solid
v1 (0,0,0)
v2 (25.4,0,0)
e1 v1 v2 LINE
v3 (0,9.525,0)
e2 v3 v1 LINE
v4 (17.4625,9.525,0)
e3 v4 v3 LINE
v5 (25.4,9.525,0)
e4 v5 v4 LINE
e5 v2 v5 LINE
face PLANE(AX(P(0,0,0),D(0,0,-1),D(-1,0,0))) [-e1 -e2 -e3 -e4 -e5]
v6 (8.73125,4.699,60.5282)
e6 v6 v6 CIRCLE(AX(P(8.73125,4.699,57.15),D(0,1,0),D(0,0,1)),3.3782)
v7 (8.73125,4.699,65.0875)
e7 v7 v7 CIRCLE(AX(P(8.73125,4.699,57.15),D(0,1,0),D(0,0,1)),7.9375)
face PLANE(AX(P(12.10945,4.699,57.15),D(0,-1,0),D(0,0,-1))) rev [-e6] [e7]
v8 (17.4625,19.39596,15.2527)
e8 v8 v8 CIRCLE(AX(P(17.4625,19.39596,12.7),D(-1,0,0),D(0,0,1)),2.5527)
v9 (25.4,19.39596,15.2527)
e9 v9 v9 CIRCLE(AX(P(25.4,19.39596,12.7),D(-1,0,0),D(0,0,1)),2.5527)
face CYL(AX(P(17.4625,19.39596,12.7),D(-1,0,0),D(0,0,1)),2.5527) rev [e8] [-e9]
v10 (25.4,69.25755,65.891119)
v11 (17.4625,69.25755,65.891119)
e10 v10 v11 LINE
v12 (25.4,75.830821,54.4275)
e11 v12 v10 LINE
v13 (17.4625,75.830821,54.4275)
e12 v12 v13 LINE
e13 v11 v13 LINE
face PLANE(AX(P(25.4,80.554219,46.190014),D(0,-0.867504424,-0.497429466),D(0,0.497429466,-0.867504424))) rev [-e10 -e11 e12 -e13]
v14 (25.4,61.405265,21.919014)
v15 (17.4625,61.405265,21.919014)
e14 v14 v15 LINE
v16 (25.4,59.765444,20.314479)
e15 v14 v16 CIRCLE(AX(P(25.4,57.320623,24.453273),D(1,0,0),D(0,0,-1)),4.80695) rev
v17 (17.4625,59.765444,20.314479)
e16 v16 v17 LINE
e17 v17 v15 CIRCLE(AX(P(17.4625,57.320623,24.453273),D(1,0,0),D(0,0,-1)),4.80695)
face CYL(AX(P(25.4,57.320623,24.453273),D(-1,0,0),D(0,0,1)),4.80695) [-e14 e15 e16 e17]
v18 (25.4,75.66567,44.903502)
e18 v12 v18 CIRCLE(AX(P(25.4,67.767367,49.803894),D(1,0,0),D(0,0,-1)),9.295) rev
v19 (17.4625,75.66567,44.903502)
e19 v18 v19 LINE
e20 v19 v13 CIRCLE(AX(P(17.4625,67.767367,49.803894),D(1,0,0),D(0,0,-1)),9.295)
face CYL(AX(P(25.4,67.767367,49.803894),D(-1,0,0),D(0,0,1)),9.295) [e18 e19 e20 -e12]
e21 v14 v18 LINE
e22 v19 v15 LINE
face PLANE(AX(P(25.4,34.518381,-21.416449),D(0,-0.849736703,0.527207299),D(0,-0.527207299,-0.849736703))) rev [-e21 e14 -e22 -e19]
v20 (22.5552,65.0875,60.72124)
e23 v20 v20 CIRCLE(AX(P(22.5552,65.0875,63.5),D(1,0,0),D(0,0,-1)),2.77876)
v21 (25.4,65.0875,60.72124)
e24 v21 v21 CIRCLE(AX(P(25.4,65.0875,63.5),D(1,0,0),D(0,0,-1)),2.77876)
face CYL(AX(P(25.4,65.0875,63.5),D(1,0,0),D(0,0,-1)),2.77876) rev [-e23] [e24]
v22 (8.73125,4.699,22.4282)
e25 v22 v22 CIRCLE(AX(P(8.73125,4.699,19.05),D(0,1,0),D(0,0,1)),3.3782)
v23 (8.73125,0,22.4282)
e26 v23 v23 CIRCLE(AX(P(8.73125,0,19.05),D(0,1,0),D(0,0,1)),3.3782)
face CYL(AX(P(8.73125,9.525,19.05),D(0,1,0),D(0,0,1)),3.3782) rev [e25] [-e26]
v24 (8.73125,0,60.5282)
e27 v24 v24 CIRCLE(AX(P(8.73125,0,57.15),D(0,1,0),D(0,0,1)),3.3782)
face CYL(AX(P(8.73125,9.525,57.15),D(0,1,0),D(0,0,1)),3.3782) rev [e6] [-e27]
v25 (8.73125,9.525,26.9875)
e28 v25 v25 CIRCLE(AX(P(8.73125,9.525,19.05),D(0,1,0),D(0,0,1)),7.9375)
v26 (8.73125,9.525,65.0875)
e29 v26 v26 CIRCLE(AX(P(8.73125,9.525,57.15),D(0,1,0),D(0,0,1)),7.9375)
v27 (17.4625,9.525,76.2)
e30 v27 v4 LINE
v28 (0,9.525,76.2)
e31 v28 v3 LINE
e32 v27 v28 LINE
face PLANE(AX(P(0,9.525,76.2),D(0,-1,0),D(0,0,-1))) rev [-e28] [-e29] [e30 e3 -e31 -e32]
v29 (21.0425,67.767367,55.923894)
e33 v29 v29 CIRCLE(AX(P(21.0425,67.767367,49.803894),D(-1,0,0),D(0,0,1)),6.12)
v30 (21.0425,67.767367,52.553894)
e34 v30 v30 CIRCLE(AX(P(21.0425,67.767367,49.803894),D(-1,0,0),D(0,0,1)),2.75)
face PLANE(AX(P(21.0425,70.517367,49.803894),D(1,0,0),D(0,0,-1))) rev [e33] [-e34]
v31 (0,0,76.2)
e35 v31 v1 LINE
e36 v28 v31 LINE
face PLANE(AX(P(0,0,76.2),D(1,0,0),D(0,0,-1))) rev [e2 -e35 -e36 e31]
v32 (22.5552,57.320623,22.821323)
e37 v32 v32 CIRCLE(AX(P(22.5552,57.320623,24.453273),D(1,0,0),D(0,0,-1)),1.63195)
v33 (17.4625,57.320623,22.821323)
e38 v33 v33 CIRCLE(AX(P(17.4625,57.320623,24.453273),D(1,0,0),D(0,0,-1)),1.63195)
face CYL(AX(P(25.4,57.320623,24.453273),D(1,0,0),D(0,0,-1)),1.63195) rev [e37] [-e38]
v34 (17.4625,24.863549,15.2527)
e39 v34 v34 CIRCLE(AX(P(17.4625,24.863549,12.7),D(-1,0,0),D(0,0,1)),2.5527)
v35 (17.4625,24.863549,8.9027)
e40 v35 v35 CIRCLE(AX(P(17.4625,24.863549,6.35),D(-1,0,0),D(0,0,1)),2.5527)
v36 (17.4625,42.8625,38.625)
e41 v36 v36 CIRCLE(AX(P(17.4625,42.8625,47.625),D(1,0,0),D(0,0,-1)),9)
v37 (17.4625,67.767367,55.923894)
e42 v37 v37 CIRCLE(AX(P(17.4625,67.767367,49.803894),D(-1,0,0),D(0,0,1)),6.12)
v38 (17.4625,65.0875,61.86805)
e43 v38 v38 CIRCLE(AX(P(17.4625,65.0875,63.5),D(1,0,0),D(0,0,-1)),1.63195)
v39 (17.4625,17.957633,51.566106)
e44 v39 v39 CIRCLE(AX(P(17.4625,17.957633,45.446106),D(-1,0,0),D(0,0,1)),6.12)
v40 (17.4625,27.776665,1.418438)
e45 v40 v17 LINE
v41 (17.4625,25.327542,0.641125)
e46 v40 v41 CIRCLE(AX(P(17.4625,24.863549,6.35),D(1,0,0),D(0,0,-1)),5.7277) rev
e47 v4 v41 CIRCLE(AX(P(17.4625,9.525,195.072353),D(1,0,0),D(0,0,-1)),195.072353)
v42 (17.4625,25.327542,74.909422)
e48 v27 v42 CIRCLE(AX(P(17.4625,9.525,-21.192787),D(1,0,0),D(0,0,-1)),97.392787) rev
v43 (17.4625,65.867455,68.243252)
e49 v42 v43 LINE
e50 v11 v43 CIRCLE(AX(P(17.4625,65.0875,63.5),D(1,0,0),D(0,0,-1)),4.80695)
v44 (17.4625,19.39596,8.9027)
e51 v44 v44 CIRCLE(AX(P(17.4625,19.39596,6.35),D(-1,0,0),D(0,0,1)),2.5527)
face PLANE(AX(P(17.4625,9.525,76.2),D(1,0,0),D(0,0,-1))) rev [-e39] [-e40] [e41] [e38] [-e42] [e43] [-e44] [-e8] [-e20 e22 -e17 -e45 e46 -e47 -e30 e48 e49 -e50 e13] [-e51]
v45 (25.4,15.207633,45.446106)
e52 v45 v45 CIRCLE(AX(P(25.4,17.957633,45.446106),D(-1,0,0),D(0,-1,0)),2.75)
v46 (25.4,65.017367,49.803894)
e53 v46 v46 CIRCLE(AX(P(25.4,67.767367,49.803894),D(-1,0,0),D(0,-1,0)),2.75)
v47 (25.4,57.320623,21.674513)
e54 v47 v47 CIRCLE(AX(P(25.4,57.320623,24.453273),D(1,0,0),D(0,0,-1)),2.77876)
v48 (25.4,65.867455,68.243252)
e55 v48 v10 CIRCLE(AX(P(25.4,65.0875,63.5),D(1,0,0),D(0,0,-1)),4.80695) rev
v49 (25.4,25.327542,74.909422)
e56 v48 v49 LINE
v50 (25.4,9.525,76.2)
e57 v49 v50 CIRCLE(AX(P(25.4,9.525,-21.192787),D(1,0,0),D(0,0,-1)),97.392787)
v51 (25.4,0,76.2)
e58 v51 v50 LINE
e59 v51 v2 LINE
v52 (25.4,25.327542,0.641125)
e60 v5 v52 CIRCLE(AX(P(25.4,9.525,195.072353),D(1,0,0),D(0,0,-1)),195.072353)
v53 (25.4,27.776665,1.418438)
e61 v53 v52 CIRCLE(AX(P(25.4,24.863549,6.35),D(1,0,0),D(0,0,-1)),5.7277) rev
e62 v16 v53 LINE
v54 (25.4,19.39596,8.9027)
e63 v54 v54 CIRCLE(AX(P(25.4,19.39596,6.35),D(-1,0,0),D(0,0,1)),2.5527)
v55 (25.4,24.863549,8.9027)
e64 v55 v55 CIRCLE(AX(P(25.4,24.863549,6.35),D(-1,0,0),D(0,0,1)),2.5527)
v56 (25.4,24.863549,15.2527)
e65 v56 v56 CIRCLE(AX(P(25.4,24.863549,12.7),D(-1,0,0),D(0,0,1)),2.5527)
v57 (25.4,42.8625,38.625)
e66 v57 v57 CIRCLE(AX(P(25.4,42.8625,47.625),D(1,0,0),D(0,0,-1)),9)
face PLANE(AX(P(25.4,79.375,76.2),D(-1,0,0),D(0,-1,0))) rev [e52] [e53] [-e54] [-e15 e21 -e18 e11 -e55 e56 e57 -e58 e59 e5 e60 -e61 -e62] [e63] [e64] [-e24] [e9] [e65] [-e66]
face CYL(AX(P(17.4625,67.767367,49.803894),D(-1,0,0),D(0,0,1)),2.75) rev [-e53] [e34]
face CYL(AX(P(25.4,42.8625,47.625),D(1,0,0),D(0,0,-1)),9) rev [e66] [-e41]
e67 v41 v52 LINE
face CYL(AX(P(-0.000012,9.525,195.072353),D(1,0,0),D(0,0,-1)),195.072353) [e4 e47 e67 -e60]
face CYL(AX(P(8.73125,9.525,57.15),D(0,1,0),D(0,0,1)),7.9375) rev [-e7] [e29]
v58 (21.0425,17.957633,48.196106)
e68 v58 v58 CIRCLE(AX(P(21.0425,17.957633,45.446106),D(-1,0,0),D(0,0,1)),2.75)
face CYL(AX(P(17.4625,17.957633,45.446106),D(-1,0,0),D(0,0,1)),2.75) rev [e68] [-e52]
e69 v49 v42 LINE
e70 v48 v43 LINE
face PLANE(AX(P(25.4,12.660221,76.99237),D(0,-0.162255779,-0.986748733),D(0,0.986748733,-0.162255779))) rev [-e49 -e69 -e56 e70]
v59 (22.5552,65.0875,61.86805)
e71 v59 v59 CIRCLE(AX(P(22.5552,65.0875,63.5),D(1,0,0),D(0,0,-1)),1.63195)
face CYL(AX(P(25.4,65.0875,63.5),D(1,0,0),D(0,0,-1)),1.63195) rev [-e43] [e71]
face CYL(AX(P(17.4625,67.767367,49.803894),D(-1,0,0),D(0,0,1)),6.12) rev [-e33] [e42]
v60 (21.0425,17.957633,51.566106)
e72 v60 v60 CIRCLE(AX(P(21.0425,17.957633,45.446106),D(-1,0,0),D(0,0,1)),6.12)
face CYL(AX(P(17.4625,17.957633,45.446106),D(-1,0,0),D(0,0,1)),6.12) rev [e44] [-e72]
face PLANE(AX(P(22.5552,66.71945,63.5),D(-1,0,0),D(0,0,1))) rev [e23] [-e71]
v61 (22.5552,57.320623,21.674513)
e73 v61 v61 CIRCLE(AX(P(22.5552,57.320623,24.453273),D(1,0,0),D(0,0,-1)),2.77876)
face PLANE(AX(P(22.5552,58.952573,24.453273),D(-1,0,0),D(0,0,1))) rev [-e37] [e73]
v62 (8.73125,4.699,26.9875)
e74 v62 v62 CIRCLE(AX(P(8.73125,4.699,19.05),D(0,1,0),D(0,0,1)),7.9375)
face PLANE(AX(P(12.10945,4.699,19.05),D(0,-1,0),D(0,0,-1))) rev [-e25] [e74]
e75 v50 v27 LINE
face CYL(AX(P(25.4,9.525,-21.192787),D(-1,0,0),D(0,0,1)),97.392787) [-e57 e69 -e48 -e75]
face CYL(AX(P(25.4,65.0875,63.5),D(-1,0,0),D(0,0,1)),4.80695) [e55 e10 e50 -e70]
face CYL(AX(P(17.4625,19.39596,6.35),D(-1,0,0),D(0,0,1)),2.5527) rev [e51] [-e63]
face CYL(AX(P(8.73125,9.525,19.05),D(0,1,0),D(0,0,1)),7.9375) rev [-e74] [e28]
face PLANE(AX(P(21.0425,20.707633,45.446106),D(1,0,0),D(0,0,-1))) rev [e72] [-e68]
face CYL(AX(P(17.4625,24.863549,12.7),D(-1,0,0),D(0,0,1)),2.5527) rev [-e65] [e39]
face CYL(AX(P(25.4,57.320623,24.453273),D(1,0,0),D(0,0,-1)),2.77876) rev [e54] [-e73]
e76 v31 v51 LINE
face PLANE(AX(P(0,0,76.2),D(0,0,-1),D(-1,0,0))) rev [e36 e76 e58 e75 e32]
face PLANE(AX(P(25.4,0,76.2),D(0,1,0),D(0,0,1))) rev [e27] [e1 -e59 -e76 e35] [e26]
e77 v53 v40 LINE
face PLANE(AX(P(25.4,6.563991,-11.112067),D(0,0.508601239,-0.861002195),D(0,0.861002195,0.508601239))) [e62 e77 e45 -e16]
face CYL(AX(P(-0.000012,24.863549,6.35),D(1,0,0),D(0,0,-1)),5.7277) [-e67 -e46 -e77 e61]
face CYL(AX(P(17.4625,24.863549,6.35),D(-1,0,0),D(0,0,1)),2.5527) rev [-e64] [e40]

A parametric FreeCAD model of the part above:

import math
import FreeCAD as App
import Part
import Sketcher
Q = App.Units.Quantity


def add_polygon(sketch, points):
    """Adds a closed chain of lines whose ends are joined by coincident constraints."""
    first, n = sketch.GeometryCount, len(points)
    for a, b in zip(points, points[1:] + points[:1]):
        sketch.addGeometry(Part.LineSegment(App.Vector(*a, 0), App.Vector(*b, 0)), False)
    for i in range(n):
        sketch.addConstraint(Sketcher.Constraint("Coincident", first + i, 2, first + (i + 1) % n, 1))

doc = App.newDocument("Part")
params = doc.addObject("Spreadsheet::Sheet", "Params")
for row, (alias, value) in enumerate([
    ("sketch1_width", "1 in"),
    ("sketch1_height", "2.75 in"),
    ("sketch1_width2", "0.3125 in"),
    ("sketch1_height2", "0.375 in"),
    ("pad1_length", "3 in"),
    ("hole_diameter", "18 mm"),
    ("hole2_diameter", "5.5 mm"),
    ("hole2_depth", "1.81 in"),
    ("hole2_cbore_diameter", "12.24 mm"),
    ("hole2_cbore_depth", "3.58 mm"),
    ("hole3_diameter", "0.1285 in"),
    ("hole3_depth", "1.81 in"),
    ("hole3_cbore_diameter", "0.2188 in"),
    ("hole3_cbore_depth", "0.112 in"),
    ("sketch5_diameter", "0.201 in"),
    ("hole4_diameter", "0.201 in"),
    ("sketch6_height", "3 in"),
    ("sketch6_width", "2.75 in"),
    ("sketch7_diameter", "0.266 in"),
    ("hole5_diameter", "0.266 in"),
    ("hole5_cbore_diameter", "0.625 in"),
    ("hole5_cbore_depth", "0.19 in"),
], start=1):
    params.set(f"A{row}", alias)
    params.set(f"B{row}", "=" + value)
    params.setAlias(f"B{row}", alias)

body = doc.addObject("PartDesign::Body", "Body")

# Sketch on XY plane
sketch1 = body.newObject("Sketcher::SketchObject", "Sketch")
sketch1.AttachmentSupport = (doc.getObject("XY_Plane"), [""])
sketch1.MapMode = "FlatFace"
add_polygon(sketch1, [(0, 10), (0, 0), (25, 0), (25, 79), (17, 79), (17, 10)])  # lines 0-5
sketch1.addConstraint(Sketcher.Constraint("Vertical", 0))
sketch1.addConstraint(Sketcher.Constraint("Horizontal", 1))
sketch1.addConstraint(Sketcher.Constraint("Vertical", 2))
sketch1.addConstraint(Sketcher.Constraint("Horizontal", 3))
sketch1.addConstraint(Sketcher.Constraint("Vertical", 4))
sketch1.addConstraint(Sketcher.Constraint("Horizontal", 5))
sketch1.addConstraint(Sketcher.Constraint("Coincident", 0, 2, -1, 1))
sketch1.addConstraint(Sketcher.Constraint("DistanceX", 1, 1, 1, 2, Q("1 in")))
sketch1.addConstraint(Sketcher.Constraint("DistanceY", 4, 2, 4, 1, Q("2.75 in")))
sketch1.addConstraint(Sketcher.Constraint("DistanceX", 3, 2, 3, 1, Q("0.3125 in")))
sketch1.addConstraint(Sketcher.Constraint("DistanceY", 0, 2, 0, 1, Q("0.375 in")))
sketch1.setExpression("Constraints[13]", "Params.sketch1_width")
sketch1.setExpression("Constraints[14]", "Params.sketch1_height")
sketch1.setExpression("Constraints[15]", "Params.sketch1_width2")
sketch1.setExpression("Constraints[16]", "Params.sketch1_height2")
pad1 = body.newObject("PartDesign::Pad", "Pad")
pad1.Profile = sketch1
pad1.setExpression("Length", "Params.pad1_length")

# Sketch on YZ plane
sketch2 = body.newObject("Sketcher::SketchObject", "Sketch001")
sketch2.AttachmentSupport = (doc.getObject("YZ_Plane"), [""])
sketch2.MapMode = "FlatFace"
sketch2.AttachmentOffset = App.Placement(App.Vector(0, 0, 1 * 25.4), App.Rotation())
sketch2.addGeometry(Part.Circle(App.Vector(43, 48, 0), App.Vector(0, 0, 1), 9), False)
sketch2.addConstraint(Sketcher.Constraint("Diameter", 0, Q("18 mm")))
sketch2.addConstraint(Sketcher.Constraint("DistanceX", -1, 1, 0, 3, Q("1.6875 in")))
sketch2.addConstraint(Sketcher.Constraint("DistanceY", -1, 1, 0, 3, Q("1.875 in")))
doc.recompute()
hole = body.newObject("PartDesign::Hole", "Hole")
hole.Profile = sketch2
hole.ThreadType = "None"
hole.setExpression("Diameter", "Params.hole_diameter")
hole.DepthType = "ThroughAll"

# Sketch on YZ plane
sketch3 = body.newObject("Sketcher::SketchObject", "Sketch002")
sketch3.AttachmentSupport = (doc.getObject("YZ_Plane"), [""])
sketch3.MapMode = "FlatFace"
sketch3.AttachmentOffset = App.Placement(App.Vector(0, 0, 0.6875 * 25.4), App.Rotation())
sketch3.addGeometry(Part.Circle(App.Vector(67.8, 49.8, 0), App.Vector(0, 0, 1), 2.8), False)
sketch3.addGeometry(Part.Circle(App.Vector(18, 45.4, 0), App.Vector(0, 0, 1), 2.8), False)
sketch3.addConstraint(Sketcher.Constraint("Equal", 0, 1))
sketch3.addConstraint(Sketcher.Constraint("Diameter", 0, Q("5.5 mm")))
sketch3.addConstraint(Sketcher.Constraint("DistanceX", -1, 1, 0, 3, Q("67.767367 mm")))
sketch3.addConstraint(Sketcher.Constraint("DistanceY", -1, 1, 0, 3, Q("49.803894 mm")))
sketch3.addConstraint(Sketcher.Constraint("DistanceX", -1, 1, 1, 3, Q("17.957633 mm")))
sketch3.addConstraint(Sketcher.Constraint("DistanceY", -1, 1, 1, 3, Q("45.446106 mm")))
doc.recompute()
hole2 = body.newObject("PartDesign::Hole", "Hole001")
hole2.Profile = sketch3
hole2.ThreadType = "None"
hole2.setExpression("Diameter", "Params.hole2_diameter")
hole2.DepthType = "Dimension"
hole2.setExpression("Depth", "Params.hole2_depth")
hole2.DrillPoint = "Angled"
hole2.DrillPointAngle = 118
hole2.HoleCutType = "Counterbore"
hole2.setExpression("HoleCutDiameter", "Params.hole2_cbore_diameter")
hole2.setExpression("HoleCutDepth", "Params.hole2_cbore_depth")
hole2.Reversed = True

# Sketch on YZ plane
sketch4 = body.newObject("Sketcher::SketchObject", "Sketch003")
sketch4.AttachmentSupport = (doc.getObject("YZ_Plane"), [""])
sketch4.MapMode = "FlatFace"
sketch4.AttachmentOffset = App.Placement(App.Vector(0, 0, 1 * 25.4), App.Rotation())
sketch4.addGeometry(Part.Circle(App.Vector(57.3, 24.5, 0), App.Vector(0, 0, 1), 1.6), False)
sketch4.addGeometry(Part.Circle(App.Vector(65.1, 63.5, 0), App.Vector(0, 0, 1), 1.6), False)
sketch4.addConstraint(Sketcher.Constraint("Equal", 0, 1))
sketch4.addConstraint(Sketcher.Constraint("Diameter", 0, Q("0.1285 in")))
sketch4.addConstraint(Sketcher.Constraint("DistanceY", -1, 1, 1, 3, Q("2.5 in")))
sketch4.addConstraint(Sketcher.Constraint("DistanceX", -1, 1, 1, 3, Q("2.5625 in")))
sketch4.addConstraint(Sketcher.Constraint("DistanceX", -1, 1, 0, 3, Q("57.320623 mm")))
sketch4.addConstraint(Sketcher.Constraint("DistanceY", -1, 1, 0, 3, Q("24.453273 mm")))
doc.recompute()
hole3 = body.newObject("PartDesign::Hole", "Hole002")
hole3.Profile = sketch4
hole3.ThreadType = "None"
hole3.setExpression("Diameter", "Params.hole3_diameter")
hole3.DepthType = "Dimension"
hole3.setExpression("Depth", "Params.hole3_depth")
hole3.DrillPoint = "Angled"
hole3.DrillPointAngle = 118
hole3.HoleCutType = "Counterbore"
hole3.setExpression("HoleCutDiameter", "Params.hole3_cbore_diameter")
hole3.setExpression("HoleCutDepth", "Params.hole3_cbore_depth")

# Sketch on YZ plane
sketch5 = body.newObject("Sketcher::SketchObject", "Sketch004")
sketch5.AttachmentSupport = (doc.getObject("YZ_Plane"), [""])
sketch5.MapMode = "FlatFace"
sketch5.AttachmentOffset = App.Placement(App.Vector(0, 0, 0.6875 * 25.4), App.Rotation())
sketch5.addGeometry(Part.Circle(App.Vector(24.9, 6.3, 0), App.Vector(0, 0, 1), 2.6), False)
sketch5.addGeometry(Part.Circle(App.Vector(24.9, 12.7, 0), App.Vector(0, 0, 1), 2.6), False)
sketch5.addGeometry(Part.Circle(App.Vector(19.4, 6.3, 0), App.Vector(0, 0, 1), 2.6), False)
sketch5.addGeometry(Part.Circle(App.Vector(19.4, 12.7, 0), App.Vector(0, 0, 1), 2.6), False)
sketch5.addConstraint(Sketcher.Constraint("Equal", 0, 1))
sketch5.addConstraint(Sketcher.Constraint("Equal", 1, 2))
sketch5.addConstraint(Sketcher.Constraint("Equal", 2, 3))
sketch5.addConstraint(Sketcher.Constraint("Horizontal", 0, 3, 2, 3))
sketch5.addConstraint(Sketcher.Constraint("Horizontal", 1, 3, 3, 3))
sketch5.addConstraint(Sketcher.Constraint("Vertical", 0, 3, 1, 3))
sketch5.addConstraint(Sketcher.Constraint("Vertical", 2, 3, 3, 3))
sketch5.addConstraint(Sketcher.Constraint("Diameter", 0, Q("0.201 in")))
sketch5.addConstraint(Sketcher.Constraint("DistanceY", -1, 1, 1, 3, Q("0.5 in")))
sketch5.addConstraint(Sketcher.Constraint("DistanceY", -1, 1, 0, 3, Q("0.25 in")))
sketch5.addConstraint(Sketcher.Constraint("DistanceX", -1, 1, 0, 3, Q("24.863549 mm")))
sketch5.addConstraint(Sketcher.Constraint("DistanceX", -1, 1, 2, 3, Q("19.39596 mm")))
sketch5.setExpression("Constraints[7]", "Params.sketch5_diameter")
doc.recompute()
hole4 = body.newObject("PartDesign::Hole", "Hole003")
hole4.Profile = sketch5
hole4.ThreadType = "None"
hole4.setExpression("Diameter", "Params.hole4_diameter")
hole4.DepthType = "ThroughAll"
hole4.Reversed = True

# Sketch on YZ plane
sketch6 = body.newObject("Sketcher::SketchObject", "Sketch005")
sketch6.AttachmentSupport = (doc.getObject("YZ_Plane"), [""])
sketch6.MapMode = "FlatFace"
sketch6.addGeometry(Part.ArcOfCircle(Part.Circle(App.Vector(9.5, -21.2, 0), App.Vector(0, 0, 1), 97.4), math.radians(80.66), math.radians(90)), False)
sketch6.addGeometry(Part.LineSegment(App.Vector(25.3, 74.9, 0), App.Vector(65.9, 68.2, 0)), False)
sketch6.addGeometry(Part.ArcOfCircle(Part.Circle(App.Vector(65.1, 63.5, 0), App.Vector(0, 0, 1), 4.8), math.radians(30), math.radians(81)), False)
sketch6.addGeometry(Part.LineSegment(App.Vector(69.3, 65.9, 0), App.Vector(75.8, 54.4, 0)), False)
sketch6.addGeometry(Part.ArcOfCircle(Part.Circle(App.Vector(67.8, 49.8, 0), App.Vector(0, 0, 1), 9.3), math.radians(-32), math.radians(30)), False)
sketch6.addGeometry(Part.LineSegment(App.Vector(75.7, 44.9, 0), App.Vector(61.4, 21.9, 0)), False)
sketch6.addGeometry(Part.ArcOfCircle(Part.Circle(App.Vector(57.3, 24.5, 0), App.Vector(0, 0, 1), 4.8), math.radians(-59), math.radians(-32)), False)
sketch6.addGeometry(Part.LineSegment(App.Vector(59.8, 20.3, 0), App.Vector(27.8, 1.4, 0)), False)
sketch6.addGeometry(Part.ArcOfCircle(Part.Circle(App.Vector(24.9, 6.3, 0), App.Vector(0, 0, 1), 5.7), math.radians(-85), math.radians(-59)), False)
sketch6.addGeometry(Part.ArcOfCircle(Part.Circle(App.Vector(9.5, 195.1, 0), App.Vector(0, 0, 1), 195.1), math.radians(-90), math.radians(-85.35)), False)
sketch6.addGeometry(Part.LineSegment(App.Vector(9.5, 0, 0), App.Vector(79.4, 0, 0)), False)
sketch6.addGeometry(Part.LineSegment(App.Vector(79.4, 0, 0), App.Vector(79.4, 76.2, 0)), False)
sketch6.addGeometry(Part.LineSegment(App.Vector(79.4, 76.2, 0), App.Vector(9.5, 76.2, 0)), False)
sketch6.addConstraint(Sketcher.Constraint("Tangent", 0, 1, 1, 1))
sketch6.addConstraint(Sketcher.Constraint("Tangent", 1, 2, 2, 2))
sketch6.addConstraint(Sketcher.Constraint("Tangent", 2, 1, 3, 1))
sketch6.addConstraint(Sketcher.Constraint("Tangent", 3, 2, 4, 2))
sketch6.addConstraint(Sketcher.Constraint("Tangent", 4, 1, 5, 1))
sketch6.addConstraint(Sketcher.Constraint("Tangent", 5, 2, 6, 2))
sketch6.addConstraint(Sketcher.Constraint("Tangent", 6, 1, 7, 1))
sketch6.addConstraint(Sketcher.Constraint("Tangent", 7, 2, 8, 2))
sketch6.addConstraint(Sketcher.Constraint("Tangent", 8, 1, 9, 2))
sketch6.addConstraint(Sketcher.Constraint("Tangent", 9, 1, 10, 1))
sketch6.addConstraint(Sketcher.Constraint("Coincident", 10, 2, 11, 1))
sketch6.addConstraint(Sketcher.Constraint("Coincident", 11, 2, 12, 1))
sketch6.addConstraint(Sketcher.Constraint("Tangent", 12, 2, 0, 2))
sketch6.addConstraint(Sketcher.Constraint("Horizontal", 10))
sketch6.addConstraint(Sketcher.Constraint("Vertical", 11))
sketch6.addConstraint(Sketcher.Constraint("Horizontal", 12))
sketch6.addConstraint(Sketcher.Constraint("Equal", 2, 6))
sketch6.addConstraint(Sketcher.Constraint("PointOnObject", 9, 1, -1))
sketch6.addConstraint(Sketcher.Constraint("Vertical", 0, 3, 9, 3))
sketch6.addConstraint(Sketcher.Constraint("Vertical", 0, 1, 8, 1))
sketch6.addConstraint(Sketcher.Constraint("DistanceY", 11, 1, 11, 2, Q("3 in")))
sketch6.addConstraint(Sketcher.Constraint("DistanceX", 10, 1, 10, 2, Q("2.75 in")))
sketch6.addConstraint(Sketcher.Constraint("DistanceY", -1, 1, 2, 3, Q("2.5 in")))
sketch6.addConstraint(Sketcher.Constraint("Radius", 8, Q("0.2255 in")))
sketch6.addConstraint(Sketcher.Constraint("DistanceY", -1, 1, 8, 3, Q("0.25 in")))
sketch6.addConstraint(Sketcher.Constraint("Radius", 4, Q("9.295 mm")))
sketch6.addConstraint(Sketcher.Constraint("DistanceX", -1, 1, 0, 3, Q("0.375 in")))
sketch6.addConstraint(Sketcher.Constraint("DistanceX", -1, 1, 2, 3, Q("2.5625 in")))
sketch6.addConstraint(Sketcher.Constraint("Radius", 2, Q("4.80695 mm")))
sketch6.addConstraint(Sketcher.Constraint("Radius", 0, Q("97.392787 mm")))
sketch6.addConstraint(Sketcher.Constraint("DistanceY", -1, 1, 3, 2, Q("54.4275 mm")))
sketch6.addConstraint(Sketcher.Constraint("DistanceY", -1, 1, 4, 1, Q("44.903502 mm")))
sketch6.addConstraint(Sketcher.Constraint("DistanceX", 7, 2, 5, 2, Q("33.6286 mm")))
sketch6.addConstraint(Sketcher.Constraint("DistanceX", 8, 1, 6, 1, Q("34.437901 mm")))
sketch6.setExpression("Constraints[20]", "Params.sketch6_height")
sketch6.setExpression("Constraints[21]", "Params.sketch6_width")
pocket1 = body.newObject("PartDesign::Pocket", "Pocket")
pocket1.Profile = sketch6
pocket1.Type = "ThroughAll"
pocket1.Midplane = True

# Sketch on XZ plane
sketch7 = body.newObject("Sketcher::SketchObject", "Sketch006")
sketch7.AttachmentSupport = (doc.getObject("XZ_Plane"), [""])
sketch7.MapMode = "FlatFace"
sketch7.AttachmentOffset = App.Placement(App.Vector(0, 0, -0.375 * 25.4), App.Rotation())
sketch7.addGeometry(Part.Circle(App.Vector(8.7, 19.1, 0), App.Vector(0, 0, 1), 3.4), False)
sketch7.addGeometry(Part.Circle(App.Vector(8.7, 57.1, 0), App.Vector(0, 0, 1), 3.4), False)
sketch7.addConstraint(Sketcher.Constraint("Equal", 0, 1))
sketch7.addConstraint(Sketcher.Constraint("Vertical", 0, 3, 1, 3))
sketch7.addConstraint(Sketcher.Constraint("Diameter", 0, Q("0.266 in")))
sketch7.addConstraint(Sketcher.Constraint("DistanceY", 0, 3, 1, 3, Q("1.5 in")))
sketch7.addConstraint(Sketcher.Constraint("DistanceY", -1, 1, 0, 3, Q("0.75 in")))
sketch7.addConstraint(Sketcher.Constraint("DistanceX", -1, 1, 0, 3, Q("0.34375 in")))
sketch7.setExpression("Constraints[2]", "Params.sketch7_diameter")
doc.recompute()
hole5 = body.newObject("PartDesign::Hole", "Hole004")
hole5.Profile = sketch7
hole5.ThreadType = "None"
hole5.setExpression("Diameter", "Params.hole5_diameter")
hole5.DepthType = "ThroughAll"
hole5.HoleCutType = "Counterbore"
hole5.setExpression("HoleCutDiameter", "Params.hole5_cbore_diameter")
hole5.setExpression("HoleCutDepth", "Params.hole5_cbore_depth")
hole5.Reversed = True

doc.recompute()
